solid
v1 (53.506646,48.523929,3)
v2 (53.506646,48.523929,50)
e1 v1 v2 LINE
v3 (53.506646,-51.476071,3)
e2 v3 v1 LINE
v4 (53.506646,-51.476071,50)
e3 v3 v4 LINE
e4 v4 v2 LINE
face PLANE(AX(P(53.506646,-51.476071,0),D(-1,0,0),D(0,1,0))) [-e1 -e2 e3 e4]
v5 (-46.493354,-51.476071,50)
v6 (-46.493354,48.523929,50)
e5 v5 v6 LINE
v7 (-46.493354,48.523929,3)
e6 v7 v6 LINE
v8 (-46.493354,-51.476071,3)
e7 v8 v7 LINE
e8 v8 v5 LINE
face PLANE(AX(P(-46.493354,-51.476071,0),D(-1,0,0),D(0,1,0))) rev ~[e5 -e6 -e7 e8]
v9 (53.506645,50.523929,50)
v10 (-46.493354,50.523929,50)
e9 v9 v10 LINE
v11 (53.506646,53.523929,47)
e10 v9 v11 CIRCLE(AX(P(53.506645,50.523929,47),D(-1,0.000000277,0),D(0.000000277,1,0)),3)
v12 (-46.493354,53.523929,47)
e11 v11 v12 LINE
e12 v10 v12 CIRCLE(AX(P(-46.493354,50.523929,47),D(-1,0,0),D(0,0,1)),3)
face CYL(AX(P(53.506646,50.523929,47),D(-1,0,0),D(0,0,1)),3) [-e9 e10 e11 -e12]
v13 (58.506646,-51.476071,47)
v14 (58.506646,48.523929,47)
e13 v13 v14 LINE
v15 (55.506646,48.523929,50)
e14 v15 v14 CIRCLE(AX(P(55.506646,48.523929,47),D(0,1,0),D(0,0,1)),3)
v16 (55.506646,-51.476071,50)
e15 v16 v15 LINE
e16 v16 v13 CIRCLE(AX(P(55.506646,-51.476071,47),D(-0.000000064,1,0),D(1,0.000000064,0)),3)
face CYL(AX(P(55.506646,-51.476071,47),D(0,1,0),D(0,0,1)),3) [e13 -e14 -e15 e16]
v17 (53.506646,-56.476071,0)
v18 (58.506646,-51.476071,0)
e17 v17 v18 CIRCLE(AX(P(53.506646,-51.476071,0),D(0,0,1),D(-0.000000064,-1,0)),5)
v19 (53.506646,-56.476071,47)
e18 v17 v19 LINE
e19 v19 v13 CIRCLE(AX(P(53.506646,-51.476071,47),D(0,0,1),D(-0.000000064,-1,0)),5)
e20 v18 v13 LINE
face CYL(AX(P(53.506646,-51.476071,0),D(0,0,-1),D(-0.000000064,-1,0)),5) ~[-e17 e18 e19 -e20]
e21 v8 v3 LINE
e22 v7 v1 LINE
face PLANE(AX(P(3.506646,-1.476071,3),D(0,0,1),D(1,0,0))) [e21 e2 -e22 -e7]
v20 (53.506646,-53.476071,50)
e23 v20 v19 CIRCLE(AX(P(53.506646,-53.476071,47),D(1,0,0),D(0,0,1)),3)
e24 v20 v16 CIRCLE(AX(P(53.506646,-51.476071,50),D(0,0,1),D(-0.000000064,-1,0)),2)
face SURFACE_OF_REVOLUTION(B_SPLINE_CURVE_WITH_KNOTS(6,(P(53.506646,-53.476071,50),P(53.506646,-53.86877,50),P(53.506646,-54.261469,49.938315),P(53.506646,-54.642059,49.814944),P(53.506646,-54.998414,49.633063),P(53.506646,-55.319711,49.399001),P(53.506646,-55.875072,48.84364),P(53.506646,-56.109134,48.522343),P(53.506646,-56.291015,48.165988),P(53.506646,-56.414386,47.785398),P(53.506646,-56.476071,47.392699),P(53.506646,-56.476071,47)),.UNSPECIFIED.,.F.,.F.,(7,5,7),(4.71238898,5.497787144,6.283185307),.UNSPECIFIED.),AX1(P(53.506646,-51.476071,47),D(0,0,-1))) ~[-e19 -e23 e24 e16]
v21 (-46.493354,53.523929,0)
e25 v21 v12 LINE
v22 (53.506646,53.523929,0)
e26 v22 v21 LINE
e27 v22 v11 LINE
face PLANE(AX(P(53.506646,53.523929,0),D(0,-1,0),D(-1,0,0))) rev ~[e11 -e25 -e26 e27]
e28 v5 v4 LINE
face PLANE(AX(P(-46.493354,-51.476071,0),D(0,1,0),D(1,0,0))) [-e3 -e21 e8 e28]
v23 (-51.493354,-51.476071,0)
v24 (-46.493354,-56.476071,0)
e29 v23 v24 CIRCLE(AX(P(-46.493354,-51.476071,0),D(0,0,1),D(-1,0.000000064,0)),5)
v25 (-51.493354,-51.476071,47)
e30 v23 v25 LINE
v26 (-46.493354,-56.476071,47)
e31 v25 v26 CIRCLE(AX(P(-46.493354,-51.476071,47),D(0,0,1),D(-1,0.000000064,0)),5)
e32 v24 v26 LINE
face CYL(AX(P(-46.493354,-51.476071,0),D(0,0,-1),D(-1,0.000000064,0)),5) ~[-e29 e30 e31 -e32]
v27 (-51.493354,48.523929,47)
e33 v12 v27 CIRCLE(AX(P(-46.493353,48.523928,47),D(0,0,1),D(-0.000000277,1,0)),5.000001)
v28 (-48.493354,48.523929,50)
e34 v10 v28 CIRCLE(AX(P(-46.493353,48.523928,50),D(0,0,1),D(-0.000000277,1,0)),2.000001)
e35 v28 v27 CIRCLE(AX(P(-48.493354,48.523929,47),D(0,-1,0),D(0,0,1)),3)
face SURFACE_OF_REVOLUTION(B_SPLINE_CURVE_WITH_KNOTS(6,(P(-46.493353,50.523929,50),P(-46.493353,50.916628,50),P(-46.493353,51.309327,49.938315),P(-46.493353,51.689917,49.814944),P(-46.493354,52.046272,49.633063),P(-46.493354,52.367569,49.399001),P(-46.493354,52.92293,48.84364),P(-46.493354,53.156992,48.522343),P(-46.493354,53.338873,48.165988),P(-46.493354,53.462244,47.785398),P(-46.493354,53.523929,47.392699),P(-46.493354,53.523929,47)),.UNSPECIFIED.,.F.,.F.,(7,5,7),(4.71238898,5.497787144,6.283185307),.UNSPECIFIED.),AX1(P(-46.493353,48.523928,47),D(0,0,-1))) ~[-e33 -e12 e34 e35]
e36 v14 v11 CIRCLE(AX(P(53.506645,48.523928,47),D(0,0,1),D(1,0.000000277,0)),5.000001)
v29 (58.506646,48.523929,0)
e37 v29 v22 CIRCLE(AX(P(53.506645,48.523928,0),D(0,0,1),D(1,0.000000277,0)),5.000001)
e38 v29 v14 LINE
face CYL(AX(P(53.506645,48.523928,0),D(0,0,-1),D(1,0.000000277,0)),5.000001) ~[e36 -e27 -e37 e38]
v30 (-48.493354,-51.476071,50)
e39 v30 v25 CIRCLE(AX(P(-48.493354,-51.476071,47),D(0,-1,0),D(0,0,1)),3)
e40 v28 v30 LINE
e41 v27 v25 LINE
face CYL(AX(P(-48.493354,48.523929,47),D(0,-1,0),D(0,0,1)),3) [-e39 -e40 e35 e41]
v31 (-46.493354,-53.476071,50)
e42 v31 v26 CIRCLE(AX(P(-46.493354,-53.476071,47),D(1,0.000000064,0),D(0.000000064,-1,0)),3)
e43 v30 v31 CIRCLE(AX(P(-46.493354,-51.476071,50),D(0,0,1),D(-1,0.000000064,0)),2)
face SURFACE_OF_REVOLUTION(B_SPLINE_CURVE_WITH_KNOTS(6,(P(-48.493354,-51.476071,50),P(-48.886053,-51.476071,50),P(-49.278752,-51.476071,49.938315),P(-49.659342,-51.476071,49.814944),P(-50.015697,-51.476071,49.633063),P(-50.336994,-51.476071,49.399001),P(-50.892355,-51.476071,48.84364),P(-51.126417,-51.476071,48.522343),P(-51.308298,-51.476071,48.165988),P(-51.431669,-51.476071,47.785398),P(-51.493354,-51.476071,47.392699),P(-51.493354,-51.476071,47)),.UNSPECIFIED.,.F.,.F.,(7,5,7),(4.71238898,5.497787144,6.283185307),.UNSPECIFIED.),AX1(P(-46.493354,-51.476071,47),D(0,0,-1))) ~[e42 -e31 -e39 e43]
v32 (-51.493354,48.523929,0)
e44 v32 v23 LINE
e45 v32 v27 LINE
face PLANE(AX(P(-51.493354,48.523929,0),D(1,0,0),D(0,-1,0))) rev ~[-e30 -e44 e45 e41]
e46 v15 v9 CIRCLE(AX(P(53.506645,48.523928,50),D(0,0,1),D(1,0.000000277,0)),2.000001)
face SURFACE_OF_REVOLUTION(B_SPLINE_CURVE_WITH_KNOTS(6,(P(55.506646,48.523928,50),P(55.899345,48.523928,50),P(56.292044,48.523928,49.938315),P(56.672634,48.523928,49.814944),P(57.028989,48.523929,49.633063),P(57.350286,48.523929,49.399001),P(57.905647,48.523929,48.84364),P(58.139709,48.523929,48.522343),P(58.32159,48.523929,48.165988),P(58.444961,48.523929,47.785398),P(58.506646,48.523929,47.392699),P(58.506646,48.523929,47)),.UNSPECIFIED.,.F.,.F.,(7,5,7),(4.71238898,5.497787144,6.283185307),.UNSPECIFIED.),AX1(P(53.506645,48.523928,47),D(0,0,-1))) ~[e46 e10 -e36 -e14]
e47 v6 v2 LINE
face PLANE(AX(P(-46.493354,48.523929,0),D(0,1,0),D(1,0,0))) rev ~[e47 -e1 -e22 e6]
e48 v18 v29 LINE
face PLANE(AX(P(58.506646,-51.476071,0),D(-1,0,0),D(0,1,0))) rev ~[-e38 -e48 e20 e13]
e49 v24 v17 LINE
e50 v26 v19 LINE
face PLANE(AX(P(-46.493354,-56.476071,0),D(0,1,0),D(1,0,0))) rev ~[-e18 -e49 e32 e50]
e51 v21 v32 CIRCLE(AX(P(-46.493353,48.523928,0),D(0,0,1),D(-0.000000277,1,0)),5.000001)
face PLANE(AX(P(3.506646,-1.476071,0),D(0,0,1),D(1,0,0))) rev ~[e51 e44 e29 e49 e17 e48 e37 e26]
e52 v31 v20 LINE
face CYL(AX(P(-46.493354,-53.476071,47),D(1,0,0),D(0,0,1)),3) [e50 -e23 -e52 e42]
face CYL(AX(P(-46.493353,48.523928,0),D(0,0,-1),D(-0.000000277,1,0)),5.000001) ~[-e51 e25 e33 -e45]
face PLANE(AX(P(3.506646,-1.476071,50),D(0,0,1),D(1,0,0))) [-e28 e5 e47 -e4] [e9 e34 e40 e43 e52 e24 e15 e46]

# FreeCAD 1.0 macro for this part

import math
import FreeCAD as App
import Part
import Sketcher
Q = App.Units.Quantity


def edges_at(feature, points):
    """Names of the edges that pass closest to the given points."""
    edges = feature.Shape.Edges
    near = lambda p: min(range(len(edges)), key=lambda i: edges[i].distToShape(Part.Vertex(*p))[0])
    return sorted({f"Edge{near(p) + 1}" for p in points})

doc = App.newDocument("Part")
body = doc.addObject("PartDesign::Body", "Body")

# Sketch on XY plane
sketch1 = body.newObject("Sketcher::SketchObject", "Sketch")
sketch1.AttachmentSupport = (doc.getObject("XY_Plane"), [""])
sketch1.MapMode = "FlatFace"
sketch1.addGeometry(Part.LineSegment(App.Vector(-46, 49, 0), App.Vector(-46, -51, 0)), False)
sketch1.addGeometry(Part.LineSegment(App.Vector(-46, -51, 0), App.Vector(54, -51, 0)), False)
sketch1.addGeometry(Part.LineSegment(App.Vector(54, -51, 0), App.Vector(54, 49, 0)), False)
sketch1.addGeometry(Part.LineSegment(App.Vector(54, 49, 0), App.Vector(-46, 49, 0)), False)
sketch1.addConstraint(Sketcher.Constraint("Coincident", 0, 2, 1, 1))
sketch1.addConstraint(Sketcher.Constraint("Coincident", 1, 2, 2, 1))
sketch1.addConstraint(Sketcher.Constraint("Coincident", 2, 2, 3, 1))
sketch1.addConstraint(Sketcher.Constraint("Coincident", 3, 2, 0, 1))
sketch1.addConstraint(Sketcher.Constraint("Vertical", 0))
sketch1.addConstraint(Sketcher.Constraint("Horizontal", 1))
sketch1.addConstraint(Sketcher.Constraint("Vertical", 2))
sketch1.addConstraint(Sketcher.Constraint("Horizontal", 3))
sketch1.addConstraint(Sketcher.Constraint("Equal", 3, 0))
sketch1.addConstraint(Sketcher.Constraint("DistanceX", 1, 1, 1, 2, Q("100 mm")))
sketch1.addConstraint(Sketcher.Constraint("DistanceY", 0, 2, -1, 1, Q("51.476071 mm")))
sketch1.addConstraint(Sketcher.Constraint("DistanceX", 0, 2, -1, 1, Q("46.493354 mm")))
pad1 = body.newObject("PartDesign::Pad", "Pad")
pad1.Profile = sketch1
pad1.Length = 3

# Sketch on XY plane
sketch2 = body.newObject("Sketcher::SketchObject", "Sketch001")
sketch2.AttachmentSupport = (doc.getObject("XY_Plane"), [""])
sketch2.MapMode = "FlatFace"
sketch2.addGeometry(Part.LineSegment(App.Vector(53.5, 53.5, 0), App.Vector(-46.5, 53.5, 0)), False)
sketch2.addGeometry(Part.ArcOfCircle(Part.Circle(App.Vector(-46.5, 48.5, 0), App.Vector(0, 0, 1), 5), math.radians(90), math.radians(180)), False)
sketch2.addGeometry(Part.LineSegment(App.Vector(-51.5, 48.5, 0), App.Vector(-51.5, -51.5, 0)), False)
sketch2.addGeometry(Part.ArcOfCircle(Part.Circle(App.Vector(-46.5, -51.5, 0), App.Vector(0, 0, 1), 5), math.radians(180), math.radians(270)), False)
sketch2.addGeometry(Part.LineSegment(App.Vector(-46.5, -56.5, 0), App.Vector(53.5, -56.5, 0)), False)
sketch2.addGeometry(Part.ArcOfCircle(Part.Circle(App.Vector(53.5, -51.5, 0), App.Vector(0, 0, 1), 5), math.radians(-90), math.radians(0)), False)
sketch2.addGeometry(Part.LineSegment(App.Vector(58.5, -51.5, 0), App.Vector(58.5, 48.5, 0)), False)
sketch2.addGeometry(Part.ArcOfCircle(Part.Circle(App.Vector(53.5, 48.5, 0), App.Vector(0, 0, 1), 5), math.radians(0), math.radians(90)), False)
sketch2.addGeometry(Part.LineSegment(App.Vector(53.5, -51.5, 0), App.Vector(-46.5, -51.5, 0)), False)
sketch2.addGeometry(Part.LineSegment(App.Vector(-46.5, -51.5, 0), App.Vector(-46.5, 48.5, 0)), False)
sketch2.addGeometry(Part.LineSegment(App.Vector(-46.5, 48.5, 0), App.Vector(53.5, 48.5, 0)), False)
sketch2.addGeometry(Part.LineSegment(App.Vector(53.5, 48.5, 0), App.Vector(53.5, -51.5, 0)), False)
sketch2.addConstraint(Sketcher.Constraint("Tangent", 0, 2, 1, 1))
sketch2.addConstraint(Sketcher.Constraint("Tangent", 1, 2, 2, 1))
sketch2.addConstraint(Sketcher.Constraint("Tangent", 2, 2, 3, 1))
sketch2.addConstraint(Sketcher.Constraint("Tangent", 3, 2, 4, 1))
sketch2.addConstraint(Sketcher.Constraint("Tangent", 4, 2, 5, 1))
sketch2.addConstraint(Sketcher.Constraint("Tangent", 5, 2, 6, 1))
sketch2.addConstraint(Sketcher.Constraint("Tangent", 6, 2, 7, 1))
sketch2.addConstraint(Sketcher.Constraint("Tangent", 7, 2, 0, 1))
sketch2.addConstraint(Sketcher.Constraint("Coincident", 8, 2, 9, 1))
sketch2.addConstraint(Sketcher.Constraint("Coincident", 9, 2, 10, 1))
sketch2.addConstraint(Sketcher.Constraint("Coincident", 10, 2, 11, 1))
sketch2.addConstraint(Sketcher.Constraint("Coincident", 11, 2, 8, 1))
sketch2.addConstraint(Sketcher.Constraint("Horizontal", 0))
sketch2.addConstraint(Sketcher.Constraint("Vertical", 2))
sketch2.addConstraint(Sketcher.Constraint("Horizontal", 4))
sketch2.addConstraint(Sketcher.Constraint("Vertical", 6))
sketch2.addConstraint(Sketcher.Constraint("Horizontal", 8))
sketch2.addConstraint(Sketcher.Constraint("Vertical", 9))
sketch2.addConstraint(Sketcher.Constraint("Horizontal", 10))
sketch2.addConstraint(Sketcher.Constraint("Vertical", 11))
sketch2.addConstraint(Sketcher.Constraint("Coincident", 8, 2, 3, 3))
sketch2.addConstraint(Sketcher.Constraint("Coincident", 9, 2, 1, 3))
sketch2.addConstraint(Sketcher.Constraint("Coincident", 10, 2, 7, 3))
sketch2.addConstraint(Sketcher.Constraint("Equal", 3, 5))
sketch2.addConstraint(Sketcher.Constraint("Equal", 10, 2))
sketch2.addConstraint(Sketcher.Constraint("Radius", 1, Q("5.000001 mm")))
sketch2.addConstraint(Sketcher.Constraint("DistanceX", 0, 2, 0, 1, Q("100 mm")))
sketch2.addConstraint(Sketcher.Constraint("DistanceY", 3, 3, -1, 1, Q("51.476071 mm")))
sketch2.addConstraint(Sketcher.Constraint("DistanceX", 1, 3, -1, 1, Q("46.493353 mm")))
pad2 = body.newObject("PartDesign::Pad", "Pad001")
pad2.Profile = sketch2
pad2.Length = 50
doc.recompute()

fillet = body.newObject("PartDesign::Fillet", "Fillet")
fillet.Base = (pad2, edges_at(pad2, [(-51.493, -1.476, 50)]))
fillet.Radius = 3

doc.recompute()
